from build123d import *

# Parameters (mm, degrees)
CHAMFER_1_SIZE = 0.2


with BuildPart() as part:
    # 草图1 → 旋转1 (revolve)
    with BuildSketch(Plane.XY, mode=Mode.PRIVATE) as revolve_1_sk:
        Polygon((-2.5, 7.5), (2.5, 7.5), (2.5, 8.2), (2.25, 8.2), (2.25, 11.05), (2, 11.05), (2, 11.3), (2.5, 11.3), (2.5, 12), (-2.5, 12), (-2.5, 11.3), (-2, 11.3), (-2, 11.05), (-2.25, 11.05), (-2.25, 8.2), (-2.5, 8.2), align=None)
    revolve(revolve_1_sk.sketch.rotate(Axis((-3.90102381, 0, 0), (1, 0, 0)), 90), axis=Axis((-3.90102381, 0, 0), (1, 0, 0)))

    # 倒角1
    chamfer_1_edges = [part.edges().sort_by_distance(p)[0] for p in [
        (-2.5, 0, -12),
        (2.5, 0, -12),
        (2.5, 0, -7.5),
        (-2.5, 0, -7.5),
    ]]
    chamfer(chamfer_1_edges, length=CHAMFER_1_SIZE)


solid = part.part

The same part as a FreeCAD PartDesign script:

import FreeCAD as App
import Part
import Sketcher


def edges_at(feature, points):
    """Names of the edges that pass closest to the given points."""
    edges = feature.Shape.Edges
    near = lambda p: min(range(len(edges)), key=lambda i: edges[i].distToShape(Part.Vertex(*p))[0])
    return sorted({f"Edge{near(p) + 1}" for p in points})

doc = App.newDocument("Part")
params = doc.addObject("Spreadsheet::Sheet", "Params")
for row, (alias, value) in enumerate([
    ("sketch1_width", "5 mm"),
    ("sketch1_width2", "0.5 mm"),
    ("sketch1_height", "0.7 mm"),
    ("sketch1_height2", "2.85 mm"),
    ("revolution_angle", "360 deg"),
    ("chamfer_size", "0.2 mm"),
], start=1):
    params.set(f"A{row}", alias)
    params.set(f"B{row}", "=" + value)
    params.setAlias(f"B{row}", alias)

body = doc.addObject("PartDesign::Body", "Body")

sketch1 = body.newObject("Sketcher::SketchObject", "Sketch")
sketch1.AttachmentSupport = (doc.getObject("XY_Plane"), [""])
sketch1.MapMode = "FlatFace"
sketch1.addGeometry([
    Part.LineSegment(App.Vector(-2.5, 7.5, 0), App.Vector(2.5, 7.5, 0)),
    Part.LineSegment(App.Vector(2.5, 7.5, 0), App.Vector(2.5, 8.2, 0)),
    Part.LineSegment(App.Vector(2.5, 8.2, 0), App.Vector(2.25, 8.2, 0)),
    Part.LineSegment(App.Vector(2.25, 8.2, 0), App.Vector(2.25, 11.05, 0)),
    Part.LineSegment(App.Vector(2.25, 11.05, 0), App.Vector(2, 11.05, 0)),
    Part.LineSegment(App.Vector(2, 11.05, 0), App.Vector(2, 11.3, 0)),
    Part.LineSegment(App.Vector(2, 11.3, 0), App.Vector(2.5, 11.3, 0)),
    Part.LineSegment(App.Vector(2.5, 11.3, 0), App.Vector(2.5, 12, 0)),
    Part.LineSegment(App.Vector(2.5, 12, 0), App.Vector(-2.5, 12, 0)),
    Part.LineSegment(App.Vector(-2.5, 12, 0), App.Vector(-2.5, 11.3, 0)),
    Part.LineSegment(App.Vector(-2.5, 11.3, 0), App.Vector(-2, 11.3, 0)),
    Part.LineSegment(App.Vector(-2, 11.3, 0), App.Vector(-2, 11.05, 0)),
    Part.LineSegment(App.Vector(-2, 11.05, 0), App.Vector(-2.25, 11.05, 0)),
    Part.LineSegment(App.Vector(-2.25, 11.05, 0), App.Vector(-2.25, 8.2, 0)),
    Part.LineSegment(App.Vector(-2.25, 8.2, 0), App.Vector(-2.5, 8.2, 0)),
    Part.LineSegment(App.Vector(-2.5, 8.2, 0), App.Vector(-2.5, 7.5, 0)),
], False)
sketch1.addConstraint([
    Sketcher.Constraint("Coincident", 0, 2, 1, 1),
    Sketcher.Constraint("Coincident", 1, 2, 2, 1),
    Sketcher.Constraint("Coincident", 2, 2, 3, 1),
    Sketcher.Constraint("Coincident", 3, 2, 4, 1),
    Sketcher.Constraint("Coincident", 4, 2, 5, 1),
    Sketcher.Constraint("Coincident", 5, 2, 6, 1),
    Sketcher.Constraint("Coincident", 6, 2, 7, 1),
    Sketcher.Constraint("Coincident", 7, 2, 8, 1),
    Sketcher.Constraint("Coincident", 8, 2, 9, 1),
    Sketcher.Constraint("Coincident", 9, 2, 10, 1),
    Sketcher.Constraint("Coincident", 10, 2, 11, 1),
    Sketcher.Constraint("Coincident", 11, 2, 12, 1),
    Sketcher.Constraint("Coincident", 12, 2, 13, 1),
    Sketcher.Constraint("Coincident", 13, 2, 14, 1),
    Sketcher.Constraint("Coincident", 14, 2, 15, 1),
    Sketcher.Constraint("Coincident", 15, 2, 0, 1),
    Sketcher.Constraint("Horizontal", 0),
    Sketcher.Constraint("Vertical", 1),
    Sketcher.Constraint("Horizontal", 2),
    Sketcher.Constraint("Vertical", 3),
    Sketcher.Constraint("Horizontal", 4),
    Sketcher.Constraint("Vertical", 5),
    Sketcher.Constraint("Horizontal", 6),
    Sketcher.Constraint("Vertical", 7),
    Sketcher.Constraint("Horizontal", 8),
    Sketcher.Constraint("Vertical", 9),
    Sketcher.Constraint("Horizontal", 10),
    Sketcher.Constraint("Vertical", 11),
    Sketcher.Constraint("Horizontal", 12),
    Sketcher.Constraint("Vertical", 13),
    Sketcher.Constraint("Horizontal", 14),
    Sketcher.Constraint("Vertical", 15),
    Sketcher.Constraint("Symmetric", 6, 2, 9, 2, -2),
    Sketcher.Constraint("Symmetric", 4, 2, 11, 2, -2),
    Sketcher.Constraint("Symmetric", 2, 2, 13, 2, -2),
    Sketcher.Constraint("Vertical", 1, 2, 6, 2),
    Sketcher.Constraint("Vertical", 9, 2, 14, 2),
    Sketcher.Constraint("Equal", 2, 4),
    Sketcher.Constraint("Equal", 14, 5),
    Sketcher.Constraint("Equal", 1, 7),
    Sketcher.Constraint("DistanceX", 0, 1, 0, 2, 5.0),
    Sketcher.Constraint("DistanceX", 6, 1, 6, 2, 0.5),
    Sketcher.Constraint("DistanceY", 1, 1, 1, 2, 0.7),
    Sketcher.Constraint("DistanceY", -1, 1, 7, 2, 12.0),
    Sketcher.Constraint("DistanceY", 3, 1, 3, 2, 2.85),
])
sketch1.setExpression("Constraints[40]", "Params.sketch1_width")
sketch1.setExpression("Constraints[41]", "Params.sketch1_width2")
sketch1.setExpression("Constraints[42]", "Params.sketch1_height")
sketch1.setExpression("Constraints[44]", "Params.sketch1_height2")
revolution = body.newObject("PartDesign::Revolution", "Revolution")
revolution.Profile = sketch1
revolution.ReferenceAxis = (sketch1, ["H_Axis"])
revolution.setExpression("Angle", "Params.revolution_angle")
doc.recompute()

chamfer = body.newObject("PartDesign::Chamfer", "Chamfer")
chamfer.Base = (revolution, edges_at(revolution, [
    (-2.5, 0, -12),
    (2.5, 0, -12),
    (2.5, 0, -7.5),
    (-2.5, 0, -7.5),
]))
chamfer.setExpression("Size", "Params.chamfer_size")

doc.recompute()
